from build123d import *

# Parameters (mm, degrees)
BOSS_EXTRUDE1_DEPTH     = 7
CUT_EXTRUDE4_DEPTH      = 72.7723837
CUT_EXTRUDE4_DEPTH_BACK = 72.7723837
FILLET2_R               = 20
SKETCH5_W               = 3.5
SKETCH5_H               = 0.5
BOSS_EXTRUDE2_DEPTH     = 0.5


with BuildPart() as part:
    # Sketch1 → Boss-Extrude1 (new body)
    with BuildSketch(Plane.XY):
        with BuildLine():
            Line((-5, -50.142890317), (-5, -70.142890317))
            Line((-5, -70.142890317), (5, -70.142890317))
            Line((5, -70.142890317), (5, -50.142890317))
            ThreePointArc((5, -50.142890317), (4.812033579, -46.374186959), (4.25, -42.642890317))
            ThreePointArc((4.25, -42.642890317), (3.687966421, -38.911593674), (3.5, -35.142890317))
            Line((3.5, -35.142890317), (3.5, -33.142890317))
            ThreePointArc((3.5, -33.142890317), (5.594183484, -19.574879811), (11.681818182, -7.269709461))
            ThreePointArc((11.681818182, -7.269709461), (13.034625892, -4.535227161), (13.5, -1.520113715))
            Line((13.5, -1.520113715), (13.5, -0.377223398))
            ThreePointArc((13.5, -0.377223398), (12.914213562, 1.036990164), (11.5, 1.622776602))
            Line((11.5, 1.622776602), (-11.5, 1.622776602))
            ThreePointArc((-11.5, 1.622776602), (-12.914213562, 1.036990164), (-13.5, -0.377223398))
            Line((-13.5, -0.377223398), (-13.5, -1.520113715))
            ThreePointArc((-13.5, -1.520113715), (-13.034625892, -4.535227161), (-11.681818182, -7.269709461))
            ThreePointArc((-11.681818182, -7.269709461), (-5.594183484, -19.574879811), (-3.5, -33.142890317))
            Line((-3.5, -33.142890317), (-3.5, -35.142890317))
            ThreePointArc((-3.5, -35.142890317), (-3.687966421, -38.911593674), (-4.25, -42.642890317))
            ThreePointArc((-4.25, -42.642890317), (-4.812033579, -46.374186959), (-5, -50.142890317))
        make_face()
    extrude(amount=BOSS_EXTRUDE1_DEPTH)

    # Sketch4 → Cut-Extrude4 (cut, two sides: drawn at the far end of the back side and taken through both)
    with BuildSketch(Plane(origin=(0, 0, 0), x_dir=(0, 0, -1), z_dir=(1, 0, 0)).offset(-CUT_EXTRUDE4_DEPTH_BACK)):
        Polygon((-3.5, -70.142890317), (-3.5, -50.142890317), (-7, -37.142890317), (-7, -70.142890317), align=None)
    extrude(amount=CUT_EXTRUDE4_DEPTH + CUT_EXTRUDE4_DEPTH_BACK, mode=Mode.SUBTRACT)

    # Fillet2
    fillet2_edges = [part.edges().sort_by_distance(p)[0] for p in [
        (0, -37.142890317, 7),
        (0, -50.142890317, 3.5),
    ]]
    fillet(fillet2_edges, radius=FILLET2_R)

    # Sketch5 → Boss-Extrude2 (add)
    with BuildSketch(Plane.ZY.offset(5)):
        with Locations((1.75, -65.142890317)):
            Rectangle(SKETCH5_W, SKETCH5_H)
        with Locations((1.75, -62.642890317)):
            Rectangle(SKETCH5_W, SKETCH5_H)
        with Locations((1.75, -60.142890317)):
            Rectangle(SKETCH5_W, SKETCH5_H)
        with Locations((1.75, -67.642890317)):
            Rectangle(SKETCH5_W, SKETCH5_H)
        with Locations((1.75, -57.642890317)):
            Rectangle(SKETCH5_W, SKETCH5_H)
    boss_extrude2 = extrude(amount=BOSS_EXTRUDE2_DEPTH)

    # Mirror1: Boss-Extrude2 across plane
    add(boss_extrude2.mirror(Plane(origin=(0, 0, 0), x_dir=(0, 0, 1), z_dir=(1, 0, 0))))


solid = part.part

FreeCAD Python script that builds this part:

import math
import FreeCAD as App
import Part
import Sketcher

V = App.Vector


def edges_at(feature, points):
    """Names of the edges that pass closest to the given points."""
    edges = feature.Shape.Edges
    near = lambda p: min(range(len(edges)), key=lambda i: edges[i].distToShape(Part.Vertex(*p))[0])
    return sorted({f"Edge{near(p) + 1}" for p in points})

doc = App.newDocument("Part")
params = doc.addObject("Spreadsheet::Sheet", "Params")
for row, (alias, value) in enumerate([
    ("sketch1_radius", "45 mm"),
    ("sketch1_radius2", "10 mm"),
    ("sketch1_radius3", "2 mm"),
    ("sketch1_width", "10 mm"),
    ("sketch1_width2", "23 mm"),
    ("pad1_length", "7 mm"),
    ("sketch2_width", "20 mm"),
    ("sketch2_width2", "33 mm"),
    ("sketch2_height", "3.5 mm"),
    ("fillet_radius", "20 mm"),
    ("sketch3_width", "0.5 mm"),
    ("sketch3_height", "3.5 mm"),
    ("pad2_length", "0.5 mm"),
], start=1):
    params.set(f"A{row}", alias)
    params.set(f"B{row}", "=" + value)
    params.setAlias(f"B{row}", alias)

body = doc.addObject("PartDesign::Body", "Body")

# Sketch on XY plane
sketch1 = doc.addObject("Sketcher::SketchObject", "Sketch")
body.addObject(sketch1)
sketch1.AttachmentSupport = (doc.XY_Plane, [""])
sketch1.MapMode = "FlatFace"
sketch1.addGeometry([
    Part.LineSegment(V(-5, -50.1, 0), V(-5, -70.1, 0)),  # 0
    Part.LineSegment(V(-5, -70.1, 0), V(5, -70.1, 0)),  # 1
    Part.LineSegment(V(5, -70.1, 0), V(5, -50.1, 0)),  # 2
    Part.ArcOfCircle(Part.Circle(V(-32.9, -50.1, 0), V(0, 0, 1), 37.9), math.radians(0), math.radians(11.42)),  # 3
    Part.ArcOfCircle(Part.Circle(V(41.4, -35.1, 0), V(0, 0, 1), 37.9), math.radians(-180), math.radians(-168.58)),  # 4
    Part.LineSegment(V(3.5, -35.1, 0), V(3.5, -33.1, 0)),  # 5
    Part.ArcOfCircle(Part.Circle(V(48.5, -33.1, 0), V(0, 0, 1), 45), math.radians(145), math.radians(180)),  # 6
    Part.ArcOfCircle(Part.Circle(V(3.5, -1.5, 0), V(0, 0, 1), 10), math.radians(-35), math.radians(0)),  # 7
    Part.LineSegment(V(13.5, -1.5, 0), V(13.5, -0.4, 0)),  # 8
    Part.ArcOfCircle(Part.Circle(V(11.5, -0.4, 0), V(0, 0, 1), 2), math.radians(0), math.radians(90)),  # 9
    Part.LineSegment(V(11.5, 1.6, 0), V(-11.5, 1.6, 0)),  # 10
    Part.ArcOfCircle(Part.Circle(V(-11.5, -0.4, 0), V(0, 0, 1), 2), math.radians(90), math.radians(180)),  # 11
    Part.LineSegment(V(-13.5, -0.4, 0), V(-13.5, -1.5, 0)),  # 12
    Part.ArcOfCircle(Part.Circle(V(-3.5, -1.5, 0), V(0, 0, 1), 10), math.radians(-180), math.radians(-145)),  # 13
    Part.ArcOfCircle(Part.Circle(V(-48.5, -33.1, 0), V(0, 0, 1), 45), math.radians(0), math.radians(35)),  # 14
    Part.LineSegment(V(-3.5, -33.1, 0), V(-3.5, -35.1, 0)),  # 15
    Part.ArcOfCircle(Part.Circle(V(-41.4, -35.1, 0), V(0, 0, 1), 37.9), math.radians(-11.42), math.radians(0)),  # 16
    Part.ArcOfCircle(Part.Circle(V(32.9, -50.1, 0), V(0, 0, 1), 37.9), math.radians(168.58), math.radians(180)),  # 17
], False)
sketch1.addConstraint([
    Sketcher.Constraint("Coincident", 0, 2, 1, 1),
    Sketcher.Constraint("Coincident", 1, 2, 2, 1),
    Sketcher.Constraint("Tangent", 2, 2, 3, 1),
    Sketcher.Constraint("Tangent", 3, 2, 4, 2),
    Sketcher.Constraint("Tangent", 4, 1, 5, 1),
    Sketcher.Constraint("Tangent", 5, 2, 6, 2),
    Sketcher.Constraint("Tangent", 6, 1, 7, 1),
    Sketcher.Constraint("Tangent", 7, 2, 8, 1),
    Sketcher.Constraint("Tangent", 8, 2, 9, 1),
    Sketcher.Constraint("Tangent", 9, 2, 10, 1),
    Sketcher.Constraint("Tangent", 10, 2, 11, 1),
    Sketcher.Constraint("Tangent", 11, 2, 12, 1),
    Sketcher.Constraint("Tangent", 12, 2, 13, 1),
    Sketcher.Constraint("Tangent", 13, 2, 14, 2),
    Sketcher.Constraint("Tangent", 14, 1, 15, 1),
    Sketcher.Constraint("Tangent", 15, 2, 16, 2),
    Sketcher.Constraint("Tangent", 16, 1, 17, 1),
    Sketcher.Constraint("Tangent", 17, 2, 0, 1),
    Sketcher.Constraint("Vertical", 0),
    Sketcher.Constraint("Horizontal", 1),
    Sketcher.Constraint("Vertical", 2),
    Sketcher.Constraint("Vertical", 5),
    Sketcher.Constraint("Vertical", 8),
    Sketcher.Constraint("Horizontal", 10),
    Sketcher.Constraint("Vertical", 12),
    Sketcher.Constraint("Vertical", 15),
    Sketcher.Constraint("Equal", 3, 4),
    Sketcher.Constraint("Equal", 9, 11),
    Sketcher.Constraint("Equal", 7, 13),
    Sketcher.Constraint("Equal", 6, 14),
    Sketcher.Constraint("Equal", 4, 16),
    Sketcher.Constraint("Equal", 16, 17),
    Sketcher.Constraint("Symmetric", 7, 3, 13, 3, -2),
    Sketcher.Constraint("Symmetric", 4, 3, 16, 3, -2),
    Sketcher.Constraint("Horizontal", 3, 3, 17, 3),
    Sketcher.Constraint("Vertical", 7, 3, 4, 1),
    Sketcher.Constraint("Radius", 6, 45.0),
    Sketcher.Constraint("Radius", 7, 10.0),
    Sketcher.Constraint("Radius", 9, 2.0),
    Sketcher.Constraint("DistanceX", 1, 1, 1, 2, 10.0),
    Sketcher.Constraint("DistanceX", 10, 2, 10, 1, 23.0),
    Sketcher.Constraint("DistanceY", 0, 2, 0, 1, 20.0),
    Sketcher.Constraint("DistanceY", 5, 1, 5, 2, 2.0),
    Sketcher.Constraint("Radius", 3, 37.875),
    Sketcher.Constraint("DistanceY", 8, 1, 8, 2, 1.14289),
    Sketcher.Constraint("DistanceY", 3, 3, -1, 1, 50.14289),
])
sketch1.setExpression("Constraints[36]", "Params.sketch1_radius")
sketch1.setExpression("Constraints[37]", "Params.sketch1_radius2")
sketch1.setExpression("Constraints[38]", "Params.sketch1_radius3")
sketch1.setExpression("Constraints[39]", "Params.sketch1_width")
sketch1.setExpression("Constraints[40]", "Params.sketch1_width2")
pad1 = doc.addObject("PartDesign::Pad", "Pad")
body.addObject(pad1)
pad1.Profile = sketch1
pad1.setExpression("Length", "Params.pad1_length")

# Sketch on YZ plane
sketch2 = doc.addObject("Sketcher::SketchObject", "Sketch001")
body.addObject(sketch2)
sketch2.AttachmentSupport = (doc.YZ_Plane, [""])
sketch2.MapMode = "FlatFace"
sketch2.addGeometry([
    Part.LineSegment(V(-70.1, 3.5, 0), V(-50.1, 3.5, 0)),
    Part.LineSegment(V(-50.1, 3.5, 0), V(-37.1, 7, 0)),
    Part.LineSegment(V(-37.1, 7, 0), V(-70.1, 7, 0)),
    Part.LineSegment(V(-70.1, 7, 0), V(-70.1, 3.5, 0)),
], False)
sketch2.addConstraint([
    Sketcher.Constraint("Coincident", 0, 2, 1, 1),
    Sketcher.Constraint("Coincident", 1, 2, 2, 1),
    Sketcher.Constraint("Coincident", 2, 2, 3, 1),
    Sketcher.Constraint("Coincident", 3, 2, 0, 1),
    Sketcher.Constraint("Horizontal", 0),
    Sketcher.Constraint("Horizontal", 2),
    Sketcher.Constraint("Vertical", 3),
    Sketcher.Constraint("DistanceX", 0, 1, 0, 2, 20.0),
    Sketcher.Constraint("DistanceX", 2, 2, 2, 1, 33.0),
    Sketcher.Constraint("DistanceY", 3, 2, 3, 1, 3.5),
    Sketcher.Constraint("DistanceY", -1, 1, 1, 2, 7.0),
    Sketcher.Constraint("DistanceX", 0, 2, -1, 1, 50.14289),
])
sketch2.setExpression("Constraints[7]", "Params.sketch2_width")
sketch2.setExpression("Constraints[8]", "Params.sketch2_width2")
sketch2.setExpression("Constraints[9]", "Params.sketch2_height")
pocket1 = doc.addObject("PartDesign::Pocket", "Pocket")
body.addObject(pocket1)
pocket1.Profile = sketch2
pocket1.Type = "ThroughAll"
pocket1.Midplane = True
doc.recompute()

fillet = doc.addObject("PartDesign::Fillet", "Fillet")
body.addObject(fillet)
fillet.Base = (pocket1, edges_at(pocket1, [(0, -37.143, 7), (0, -50.143, 3.5)]))
fillet.setExpression("Radius", "Params.fillet_radius")

# Sketch on YZ plane
sketch3 = doc.addObject("Sketcher::SketchObject", "Sketch002")
body.addObject(sketch3)
sketch3.AttachmentSupport = (doc.YZ_Plane, [""])
sketch3.MapMode = "FlatFace"
sketch3.AttachmentOffset = App.Placement(V(0, 0, -5), App.Rotation())
sketch3.addGeometry([
    Part.LineSegment(V(-64.9, 0, 0), V(-65.4, 0, 0)),  # 0
    Part.LineSegment(V(-65.4, 0, 0), V(-65.4, 3.5, 0)),  # 1
    Part.LineSegment(V(-65.4, 3.5, 0), V(-64.9, 3.5, 0)),  # 2
    Part.LineSegment(V(-64.9, 3.5, 0), V(-64.9, 0, 0)),  # 3
    Part.LineSegment(V(-62.4, 0, 0), V(-62.9, 0, 0)),  # 4
    Part.LineSegment(V(-62.9, 0, 0), V(-62.9, 3.5, 0)),  # 5
    Part.LineSegment(V(-62.9, 3.5, 0), V(-62.4, 3.5, 0)),  # 6
    Part.LineSegment(V(-62.4, 3.5, 0), V(-62.4, 0, 0)),  # 7
    Part.LineSegment(V(-59.9, 0, 0), V(-60.4, 0, 0)),  # 8
    Part.LineSegment(V(-60.4, 0, 0), V(-60.4, 3.5, 0)),  # 9
    Part.LineSegment(V(-60.4, 3.5, 0), V(-59.9, 3.5, 0)),  # 10
    Part.LineSegment(V(-59.9, 3.5, 0), V(-59.9, 0, 0)),  # 11
    Part.LineSegment(V(-67.4, 0, 0), V(-67.9, 0, 0)),  # 12
    Part.LineSegment(V(-67.9, 0, 0), V(-67.9, 3.5, 0)),  # 13
    Part.LineSegment(V(-67.9, 3.5, 0), V(-67.4, 3.5, 0)),  # 14
    Part.LineSegment(V(-67.4, 3.5, 0), V(-67.4, 0, 0)),  # 15
    Part.LineSegment(V(-57.4, 0, 0), V(-57.9, 0, 0)),  # 16
    Part.LineSegment(V(-57.9, 0, 0), V(-57.9, 3.5, 0)),  # 17
    Part.LineSegment(V(-57.9, 3.5, 0), V(-57.4, 3.5, 0)),  # 18
    Part.LineSegment(V(-57.4, 3.5, 0), V(-57.4, 0, 0)),  # 19
], False)
sketch3.addConstraint([
    Sketcher.Constraint("Coincident", 0, 2, 1, 1),
    Sketcher.Constraint("Coincident", 1, 2, 2, 1),
    Sketcher.Constraint("Coincident", 2, 2, 3, 1),
    Sketcher.Constraint("Coincident", 3, 2, 0, 1),
    Sketcher.Constraint("Coincident", 4, 2, 5, 1),
    Sketcher.Constraint("Coincident", 5, 2, 6, 1),
    Sketcher.Constraint("Coincident", 6, 2, 7, 1),
    Sketcher.Constraint("Coincident", 7, 2, 4, 1),
    Sketcher.Constraint("Coincident", 8, 2, 9, 1),
    Sketcher.Constraint("Coincident", 9, 2, 10, 1),
    Sketcher.Constraint("Coincident", 10, 2, 11, 1),
    Sketcher.Constraint("Coincident", 11, 2, 8, 1),
    Sketcher.Constraint("Coincident", 12, 2, 13, 1),
    Sketcher.Constraint("Coincident", 13, 2, 14, 1),
    Sketcher.Constraint("Coincident", 14, 2, 15, 1),
    Sketcher.Constraint("Coincident", 15, 2, 12, 1),
    Sketcher.Constraint("Coincident", 16, 2, 17, 1),
    Sketcher.Constraint("Coincident", 17, 2, 18, 1),
    Sketcher.Constraint("Coincident", 18, 2, 19, 1),
    Sketcher.Constraint("Coincident", 19, 2, 16, 1),
    Sketcher.Constraint("Horizontal", 0),
    Sketcher.Constraint("Vertical", 1),
    Sketcher.Constraint("Horizontal", 2),
    Sketcher.Constraint("Vertical", 3),
    Sketcher.Constraint("Horizontal", 4),
    Sketcher.Constraint("Vertical", 5),
    Sketcher.Constraint("Horizontal", 6),
    Sketcher.Constraint("Vertical", 7),
    Sketcher.Constraint("Horizontal", 8),
    Sketcher.Constraint("Vertical", 9),
    Sketcher.Constraint("Horizontal", 10),
    Sketcher.Constraint("Vertical", 11),
    Sketcher.Constraint("Horizontal", 12),
    Sketcher.Constraint("Vertical", 13),
    Sketcher.Constraint("Horizontal", 14),
    Sketcher.Constraint("Vertical", 15),
    Sketcher.Constraint("Horizontal", 16),
    Sketcher.Constraint("Vertical", 17),
    Sketcher.Constraint("Horizontal", 18),
    Sketcher.Constraint("Vertical", 19),
    Sketcher.Constraint("PointOnObject", 0, 2, -1),
    Sketcher.Constraint("PointOnObject", 4, 2, -1),
    Sketcher.Constraint("PointOnObject", 8, 2, -1),
    Sketcher.Constraint("PointOnObject", 12, 2, -1),
    Sketcher.Constraint("PointOnObject", 16, 2, -1),
    Sketcher.Constraint("Horizontal", 2, 2, 5, 2),
    Sketcher.Constraint("Horizontal", 6, 2, 9, 2),
    Sketcher.Constraint("Horizontal", 10, 2, 13, 2),
    Sketcher.Constraint("Horizontal", 14, 2, 17, 2),
    Sketcher.Constraint("Equal", 2, 4),
    Sketcher.Constraint("Equal", 6, 8),
    Sketcher.Constraint("Equal", 10, 12),
    Sketcher.Constraint("Equal", 14, 16),
    Sketcher.Constraint("DistanceX", 0, 2, 0, 1, 0.5),
    Sketcher.Constraint("DistanceY", 1, 1, 1, 2, 3.5),
    Sketcher.Constraint("DistanceX", 3, 2, 4, 2, 2.0),
    Sketcher.Constraint("DistanceX", 7, 2, 8, 2, 2.0),
    Sketcher.Constraint("DistanceX", 12, 2, 3, 2, 3.0),
    Sketcher.Constraint("DistanceX", 11, 2, 16, 2, 2.0),
    Sketcher.Constraint("DistanceX", 0, 2, -1, 1, 65.39289),
])
sketch3.setExpression("Constraints[53]", "Params.sketch3_width")
sketch3.setExpression("Constraints[54]", "Params.sketch3_height")
pad2 = doc.addObject("PartDesign::Pad", "Pad001")
body.addObject(pad2)
pad2.Profile = sketch3
pad2.setExpression("Length", "Params.pad2_length")
pad2.Reversed = True
doc.recompute()

mirrored = doc.addObject("PartDesign::Mirrored", "Mirrored")
body.addObject(mirrored)
mirrored.Originals = [pad2]
mirrored.MirrorPlane = (doc.YZ_Plane, [""])
body.Tip = mirrored

doc.recompute()
